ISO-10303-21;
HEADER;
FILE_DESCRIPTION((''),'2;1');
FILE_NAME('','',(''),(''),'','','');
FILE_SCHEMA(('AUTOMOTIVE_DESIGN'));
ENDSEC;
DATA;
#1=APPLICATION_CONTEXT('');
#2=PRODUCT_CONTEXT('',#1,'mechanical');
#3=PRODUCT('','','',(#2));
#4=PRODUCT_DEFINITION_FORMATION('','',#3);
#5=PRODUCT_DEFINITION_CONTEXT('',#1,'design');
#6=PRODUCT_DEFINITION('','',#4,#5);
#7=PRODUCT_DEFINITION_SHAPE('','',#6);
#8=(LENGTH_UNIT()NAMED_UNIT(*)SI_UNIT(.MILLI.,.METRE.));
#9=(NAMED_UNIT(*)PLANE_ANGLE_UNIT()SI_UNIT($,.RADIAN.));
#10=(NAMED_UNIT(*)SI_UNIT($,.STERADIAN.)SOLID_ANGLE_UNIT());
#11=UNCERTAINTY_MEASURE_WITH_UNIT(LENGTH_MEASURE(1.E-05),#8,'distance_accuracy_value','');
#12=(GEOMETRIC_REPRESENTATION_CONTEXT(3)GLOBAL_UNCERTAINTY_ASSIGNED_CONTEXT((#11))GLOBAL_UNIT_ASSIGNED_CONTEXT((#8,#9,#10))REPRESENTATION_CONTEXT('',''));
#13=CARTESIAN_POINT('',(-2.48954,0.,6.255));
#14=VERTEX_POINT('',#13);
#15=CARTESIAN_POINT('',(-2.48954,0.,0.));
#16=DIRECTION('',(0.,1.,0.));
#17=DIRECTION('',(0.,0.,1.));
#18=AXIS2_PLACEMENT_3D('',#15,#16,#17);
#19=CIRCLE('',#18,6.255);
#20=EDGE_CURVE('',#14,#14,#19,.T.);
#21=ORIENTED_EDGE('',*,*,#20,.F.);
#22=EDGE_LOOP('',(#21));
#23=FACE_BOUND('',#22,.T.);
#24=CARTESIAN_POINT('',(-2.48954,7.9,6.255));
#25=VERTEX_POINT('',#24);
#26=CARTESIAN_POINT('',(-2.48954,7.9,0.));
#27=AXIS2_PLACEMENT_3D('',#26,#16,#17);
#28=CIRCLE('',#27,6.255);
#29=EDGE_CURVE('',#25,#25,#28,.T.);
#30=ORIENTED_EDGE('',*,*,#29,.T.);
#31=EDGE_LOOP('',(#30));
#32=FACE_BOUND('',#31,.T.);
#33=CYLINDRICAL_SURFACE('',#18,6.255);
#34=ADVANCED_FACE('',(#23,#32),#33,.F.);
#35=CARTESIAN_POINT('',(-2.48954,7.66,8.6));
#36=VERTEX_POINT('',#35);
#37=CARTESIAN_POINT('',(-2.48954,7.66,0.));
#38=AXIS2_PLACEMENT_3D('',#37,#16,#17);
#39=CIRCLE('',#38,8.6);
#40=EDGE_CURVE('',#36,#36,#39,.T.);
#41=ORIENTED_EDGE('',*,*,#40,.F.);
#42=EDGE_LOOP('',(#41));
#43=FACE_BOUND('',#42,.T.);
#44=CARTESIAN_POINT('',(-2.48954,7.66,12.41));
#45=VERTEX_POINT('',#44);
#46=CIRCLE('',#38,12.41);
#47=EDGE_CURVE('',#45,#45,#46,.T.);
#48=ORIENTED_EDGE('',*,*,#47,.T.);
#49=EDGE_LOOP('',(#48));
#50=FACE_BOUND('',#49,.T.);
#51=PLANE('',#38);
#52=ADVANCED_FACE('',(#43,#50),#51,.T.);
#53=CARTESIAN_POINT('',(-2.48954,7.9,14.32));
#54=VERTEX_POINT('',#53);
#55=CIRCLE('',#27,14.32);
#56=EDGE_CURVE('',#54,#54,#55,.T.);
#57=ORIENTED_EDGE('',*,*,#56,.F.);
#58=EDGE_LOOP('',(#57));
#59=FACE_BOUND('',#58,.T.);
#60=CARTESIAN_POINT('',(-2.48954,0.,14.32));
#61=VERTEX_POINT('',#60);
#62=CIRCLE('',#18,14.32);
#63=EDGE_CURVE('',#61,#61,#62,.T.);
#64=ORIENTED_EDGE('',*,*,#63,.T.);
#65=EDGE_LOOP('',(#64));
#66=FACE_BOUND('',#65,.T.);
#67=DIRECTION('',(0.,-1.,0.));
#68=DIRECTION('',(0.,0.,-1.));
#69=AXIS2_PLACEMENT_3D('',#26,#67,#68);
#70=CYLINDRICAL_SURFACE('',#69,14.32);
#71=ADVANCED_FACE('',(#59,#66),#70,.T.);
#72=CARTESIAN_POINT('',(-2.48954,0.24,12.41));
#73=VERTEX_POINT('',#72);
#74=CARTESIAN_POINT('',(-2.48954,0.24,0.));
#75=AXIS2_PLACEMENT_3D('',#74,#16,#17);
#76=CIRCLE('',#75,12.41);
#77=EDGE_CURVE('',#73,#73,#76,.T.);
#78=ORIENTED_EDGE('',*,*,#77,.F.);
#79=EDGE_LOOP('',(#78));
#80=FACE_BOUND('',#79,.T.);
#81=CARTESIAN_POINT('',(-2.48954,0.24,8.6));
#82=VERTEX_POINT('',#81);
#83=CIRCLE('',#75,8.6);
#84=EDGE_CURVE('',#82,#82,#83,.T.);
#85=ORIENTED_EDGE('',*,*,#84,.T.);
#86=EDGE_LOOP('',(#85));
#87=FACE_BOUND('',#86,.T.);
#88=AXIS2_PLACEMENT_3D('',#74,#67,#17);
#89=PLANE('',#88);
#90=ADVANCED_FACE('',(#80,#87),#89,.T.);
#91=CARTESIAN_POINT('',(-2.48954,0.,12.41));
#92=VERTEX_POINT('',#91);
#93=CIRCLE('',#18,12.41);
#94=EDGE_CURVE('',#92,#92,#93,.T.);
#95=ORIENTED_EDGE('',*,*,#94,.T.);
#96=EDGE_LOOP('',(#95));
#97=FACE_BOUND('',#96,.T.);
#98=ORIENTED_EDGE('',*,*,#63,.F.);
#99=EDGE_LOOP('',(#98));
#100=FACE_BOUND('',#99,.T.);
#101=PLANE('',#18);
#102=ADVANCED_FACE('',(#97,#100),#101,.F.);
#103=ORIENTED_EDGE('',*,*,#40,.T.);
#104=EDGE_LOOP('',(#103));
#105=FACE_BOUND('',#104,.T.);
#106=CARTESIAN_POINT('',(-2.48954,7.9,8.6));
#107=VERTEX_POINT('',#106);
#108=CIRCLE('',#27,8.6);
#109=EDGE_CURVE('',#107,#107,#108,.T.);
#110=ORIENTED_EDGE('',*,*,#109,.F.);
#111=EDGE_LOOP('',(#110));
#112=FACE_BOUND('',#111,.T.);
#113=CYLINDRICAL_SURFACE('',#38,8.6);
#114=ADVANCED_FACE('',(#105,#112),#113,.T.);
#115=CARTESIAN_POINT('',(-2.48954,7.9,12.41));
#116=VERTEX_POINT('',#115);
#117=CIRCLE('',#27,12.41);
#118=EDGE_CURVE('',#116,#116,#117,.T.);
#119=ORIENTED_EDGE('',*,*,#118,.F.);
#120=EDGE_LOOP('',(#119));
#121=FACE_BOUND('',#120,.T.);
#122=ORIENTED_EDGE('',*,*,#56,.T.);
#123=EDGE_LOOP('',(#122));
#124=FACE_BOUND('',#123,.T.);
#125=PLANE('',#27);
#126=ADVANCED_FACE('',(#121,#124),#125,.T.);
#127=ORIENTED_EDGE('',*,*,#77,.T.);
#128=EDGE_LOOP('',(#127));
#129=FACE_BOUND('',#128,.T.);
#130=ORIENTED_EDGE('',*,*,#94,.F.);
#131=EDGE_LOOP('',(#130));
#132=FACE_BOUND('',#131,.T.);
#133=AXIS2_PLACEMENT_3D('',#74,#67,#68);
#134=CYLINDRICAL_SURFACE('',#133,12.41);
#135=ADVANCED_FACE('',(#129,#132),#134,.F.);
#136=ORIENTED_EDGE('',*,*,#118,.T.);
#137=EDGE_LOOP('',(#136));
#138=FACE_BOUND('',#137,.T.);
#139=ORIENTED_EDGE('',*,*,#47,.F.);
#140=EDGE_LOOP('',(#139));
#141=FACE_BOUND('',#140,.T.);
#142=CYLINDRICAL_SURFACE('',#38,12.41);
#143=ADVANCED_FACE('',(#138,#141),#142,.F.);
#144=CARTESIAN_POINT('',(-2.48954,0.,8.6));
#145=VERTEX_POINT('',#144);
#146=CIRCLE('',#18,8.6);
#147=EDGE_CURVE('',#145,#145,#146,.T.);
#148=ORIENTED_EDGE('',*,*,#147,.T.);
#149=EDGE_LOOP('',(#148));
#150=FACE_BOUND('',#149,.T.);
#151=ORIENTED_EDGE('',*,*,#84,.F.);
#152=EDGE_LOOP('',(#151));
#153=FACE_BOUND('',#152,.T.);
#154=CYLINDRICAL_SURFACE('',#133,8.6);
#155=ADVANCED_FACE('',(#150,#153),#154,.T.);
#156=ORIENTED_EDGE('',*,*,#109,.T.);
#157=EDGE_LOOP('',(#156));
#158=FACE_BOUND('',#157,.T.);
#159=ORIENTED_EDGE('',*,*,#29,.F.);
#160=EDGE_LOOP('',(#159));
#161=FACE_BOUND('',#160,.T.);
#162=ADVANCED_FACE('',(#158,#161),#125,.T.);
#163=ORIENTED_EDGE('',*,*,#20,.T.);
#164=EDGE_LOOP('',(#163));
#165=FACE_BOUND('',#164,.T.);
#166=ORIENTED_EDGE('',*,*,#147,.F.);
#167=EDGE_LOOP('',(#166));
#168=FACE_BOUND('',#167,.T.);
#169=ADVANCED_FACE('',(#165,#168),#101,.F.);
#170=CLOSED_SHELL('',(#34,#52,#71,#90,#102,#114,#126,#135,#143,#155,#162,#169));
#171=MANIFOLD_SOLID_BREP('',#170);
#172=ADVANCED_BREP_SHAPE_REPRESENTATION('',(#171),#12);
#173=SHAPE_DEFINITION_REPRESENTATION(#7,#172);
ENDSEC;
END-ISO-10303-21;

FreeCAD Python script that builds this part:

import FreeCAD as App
import Part
import Sketcher

V = App.Vector

doc = App.newDocument("Part")
body = doc.addObject("PartDesign::Body", "Body")

sketch1 = body.newObject("Sketcher::SketchObject", "Sketch")
sketch1.AttachmentSupport = (doc.getObject("XZ_Plane"), [""])
sketch1.MapMode = "FlatFace"
sketch1.addGeometry(Part.Circle(V(-2.48954, 0, 0), V(0, 0, 1), 14.32), False)
sketch1.addConstraint([
    Sketcher.Constraint("PointOnObject", 0, 3, -1),
    Sketcher.Constraint("Diameter", 0, 28.64),
    Sketcher.Constraint("DistanceX", 0, 3, -1, 1, 2.48954),
])
pad1 = body.newObject("PartDesign::Pad", "Pad")
pad1.Profile = sketch1
pad1.Length = 7.9
pad1.Reversed = True

sketch2 = body.newObject("Sketcher::SketchObject", "Sketch001")
sketch2.AttachmentSupport = (doc.getObject("XZ_Plane"), [""])
sketch2.MapMode = "FlatFace"
sketch2.AttachmentOffset = App.Placement(V(0, 0, -7.9), App.Rotation())
sketch2.addGeometry(Part.Circle(V(-2.48954, 0, 0), V(0, 0, 1), 6.255), False)
sketch2.addConstraint([
    Sketcher.Constraint("PointOnObject", 0, 3, -1),
    Sketcher.Constraint("Diameter", 0, 12.51),
    Sketcher.Constraint("DistanceX", 0, 3, -1, 1, 2.48954),
])
pocket1 = body.newObject("PartDesign::Pocket", "Pocket")
pocket1.Profile = sketch2
pocket1.Length = 7.9
pocket1.Reversed = True

sketch3 = body.newObject("Sketcher::SketchObject", "Sketch002")
sketch3.AttachmentSupport = (doc.getObject("XZ_Plane"), [""])
sketch3.MapMode = "FlatFace"
sketch3.AttachmentOffset = App.Placement(V(0, 0, -7.9), App.Rotation())
sketch3.addGeometry([
    Part.Circle(V(-2.48954, 0, 0), V(0, 0, 1), 12.41),
    Part.Circle(V(-2.48954, 0, 0), V(0, 0, 1), 8.6),
], False)
sketch3.addConstraint([
    Sketcher.Constraint("Coincident", 1, 3, 0, 3),
    Sketcher.Constraint("PointOnObject", 0, 3, -1),
    Sketcher.Constraint("Diameter", 1, 17.2),
    Sketcher.Constraint("Diameter", 0, 24.82),
    Sketcher.Constraint("DistanceX", 0, 3, -1, 1, 2.48954),
])
pocket2 = body.newObject("PartDesign::Pocket", "Pocket001")
pocket2.Profile = sketch3
pocket2.Length = 0.24
pocket2.Reversed = True
doc.recompute()

datumplane = body.newObject("PartDesign::Plane", "DatumPlane")
datumplane.AttachmentSupport = (doc.getObject("XZ_Plane"), [""])
datumplane.MapMode = "FlatFace"
datumplane.AttachmentOffset = App.Placement(V(0, 0, -3.95), App.Rotation())
mirrored = body.newObject("PartDesign::Mirrored", "Mirrored")
mirrored.Originals = [pocket2]
mirrored.MirrorPlane = (datumplane, [""])
body.Tip = mirrored

doc.recompute()
